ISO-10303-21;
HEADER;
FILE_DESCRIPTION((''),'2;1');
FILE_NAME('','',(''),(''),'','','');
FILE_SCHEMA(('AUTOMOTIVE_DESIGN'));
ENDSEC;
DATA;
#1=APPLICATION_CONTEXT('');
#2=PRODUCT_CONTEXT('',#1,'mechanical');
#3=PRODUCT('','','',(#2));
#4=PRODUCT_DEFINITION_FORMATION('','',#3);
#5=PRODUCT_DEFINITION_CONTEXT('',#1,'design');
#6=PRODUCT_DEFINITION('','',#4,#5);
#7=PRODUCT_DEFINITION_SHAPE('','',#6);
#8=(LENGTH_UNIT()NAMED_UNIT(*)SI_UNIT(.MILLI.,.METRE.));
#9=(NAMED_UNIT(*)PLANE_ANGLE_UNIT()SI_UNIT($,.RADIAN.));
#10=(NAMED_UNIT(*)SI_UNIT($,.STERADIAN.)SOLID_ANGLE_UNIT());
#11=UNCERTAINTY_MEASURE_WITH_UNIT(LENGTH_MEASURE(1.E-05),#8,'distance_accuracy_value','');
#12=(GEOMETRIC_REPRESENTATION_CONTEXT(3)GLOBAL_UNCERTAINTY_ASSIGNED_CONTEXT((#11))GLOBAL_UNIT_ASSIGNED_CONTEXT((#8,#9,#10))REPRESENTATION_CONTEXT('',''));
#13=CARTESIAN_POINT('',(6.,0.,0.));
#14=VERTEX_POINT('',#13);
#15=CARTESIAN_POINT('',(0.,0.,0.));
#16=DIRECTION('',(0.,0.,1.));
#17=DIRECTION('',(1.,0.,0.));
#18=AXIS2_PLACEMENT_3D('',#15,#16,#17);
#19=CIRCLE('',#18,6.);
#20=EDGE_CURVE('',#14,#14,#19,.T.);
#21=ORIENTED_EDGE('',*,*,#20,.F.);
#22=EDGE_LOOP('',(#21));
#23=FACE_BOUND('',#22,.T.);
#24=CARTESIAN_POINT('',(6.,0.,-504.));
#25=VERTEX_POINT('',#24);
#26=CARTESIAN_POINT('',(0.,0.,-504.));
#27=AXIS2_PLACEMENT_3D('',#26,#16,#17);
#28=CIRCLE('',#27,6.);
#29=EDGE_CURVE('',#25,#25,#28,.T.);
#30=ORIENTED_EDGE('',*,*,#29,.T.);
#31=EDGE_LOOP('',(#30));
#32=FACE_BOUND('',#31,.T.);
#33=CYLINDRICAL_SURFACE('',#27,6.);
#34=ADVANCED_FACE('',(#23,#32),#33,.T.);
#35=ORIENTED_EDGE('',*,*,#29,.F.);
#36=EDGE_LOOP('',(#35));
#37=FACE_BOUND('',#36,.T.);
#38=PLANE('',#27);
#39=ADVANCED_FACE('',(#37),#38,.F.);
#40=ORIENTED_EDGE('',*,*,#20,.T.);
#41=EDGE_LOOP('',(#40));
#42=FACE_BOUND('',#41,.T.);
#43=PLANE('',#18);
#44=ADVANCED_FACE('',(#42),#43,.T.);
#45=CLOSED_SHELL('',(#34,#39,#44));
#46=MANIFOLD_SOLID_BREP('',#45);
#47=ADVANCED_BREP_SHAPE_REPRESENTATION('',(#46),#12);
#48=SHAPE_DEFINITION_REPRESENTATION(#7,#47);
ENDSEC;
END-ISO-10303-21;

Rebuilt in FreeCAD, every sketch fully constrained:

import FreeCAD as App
import Part
import Sketcher

doc = App.newDocument("Part")
body = doc.addObject("PartDesign::Body", "Body")

# Sketch on XY plane
sketch1 = body.newObject("Sketcher::SketchObject", "Sketch")
sketch1.AttachmentSupport = (doc.getObject("XY_Plane"), [""])
sketch1.MapMode = "FlatFace"
sketch1.addGeometry(Part.Circle(App.Vector(0, 0, 0), App.Vector(0, 0, 1), 6), False)
sketch1.addConstraint([
    Sketcher.Constraint("Coincident", 0, 3, -1, 1),
    Sketcher.Constraint("Diameter", 0, 12.0),
])
pad1 = body.newObject("PartDesign::Pad", "Pad")
pad1.Profile = sketch1
pad1.Length = 504
pad1.Reversed = True

doc.recompute()
